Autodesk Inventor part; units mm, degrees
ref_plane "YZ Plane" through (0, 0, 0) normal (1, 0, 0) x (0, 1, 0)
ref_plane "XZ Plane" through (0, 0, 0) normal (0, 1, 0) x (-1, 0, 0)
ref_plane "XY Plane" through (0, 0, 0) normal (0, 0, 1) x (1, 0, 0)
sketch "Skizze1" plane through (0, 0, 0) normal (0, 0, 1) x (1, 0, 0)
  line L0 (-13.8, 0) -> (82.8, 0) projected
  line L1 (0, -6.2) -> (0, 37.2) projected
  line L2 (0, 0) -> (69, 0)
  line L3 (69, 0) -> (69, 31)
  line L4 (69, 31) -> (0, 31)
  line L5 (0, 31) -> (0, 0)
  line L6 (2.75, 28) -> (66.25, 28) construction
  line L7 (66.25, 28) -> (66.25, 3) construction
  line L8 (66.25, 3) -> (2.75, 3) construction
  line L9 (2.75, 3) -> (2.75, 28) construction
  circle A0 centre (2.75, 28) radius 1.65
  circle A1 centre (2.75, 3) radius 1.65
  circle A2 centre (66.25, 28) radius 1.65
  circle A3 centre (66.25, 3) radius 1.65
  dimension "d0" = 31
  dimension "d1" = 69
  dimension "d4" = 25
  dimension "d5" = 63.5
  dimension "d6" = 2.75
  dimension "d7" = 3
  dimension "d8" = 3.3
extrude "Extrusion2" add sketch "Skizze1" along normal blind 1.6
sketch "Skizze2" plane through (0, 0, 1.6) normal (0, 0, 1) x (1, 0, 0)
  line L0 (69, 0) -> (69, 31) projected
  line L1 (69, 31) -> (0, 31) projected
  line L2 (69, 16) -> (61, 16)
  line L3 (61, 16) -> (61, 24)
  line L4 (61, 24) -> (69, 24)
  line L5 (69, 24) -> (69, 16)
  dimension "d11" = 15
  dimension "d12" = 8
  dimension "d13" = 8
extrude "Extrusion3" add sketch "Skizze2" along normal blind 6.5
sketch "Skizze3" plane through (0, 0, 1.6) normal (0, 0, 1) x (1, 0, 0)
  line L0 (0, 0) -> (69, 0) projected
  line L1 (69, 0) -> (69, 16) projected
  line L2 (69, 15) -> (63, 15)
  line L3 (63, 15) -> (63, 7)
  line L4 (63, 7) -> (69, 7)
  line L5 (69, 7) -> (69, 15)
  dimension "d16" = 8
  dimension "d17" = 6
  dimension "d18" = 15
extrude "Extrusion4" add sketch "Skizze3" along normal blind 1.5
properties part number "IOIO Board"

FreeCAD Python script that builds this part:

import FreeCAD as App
import Part
import Sketcher


def add_polygon(sketch, points):
    """Adds a closed chain of lines whose ends are joined by coincident constraints."""
    first, n = sketch.GeometryCount, len(points)
    for a, b in zip(points, points[1:] + points[:1]):
        sketch.addGeometry(Part.LineSegment(App.Vector(*a, 0), App.Vector(*b, 0)), False)
    for i in range(n):
        sketch.addConstraint(Sketcher.Constraint("Coincident", first + i, 2, first + (i + 1) % n, 1))

doc = App.newDocument("Part")
body = doc.addObject("PartDesign::Body", "Body")

sketch1 = body.newObject("Sketcher::SketchObject", "Sketch")
sketch1.AttachmentSupport = (doc.getObject("XY_Plane"), [""])
sketch1.MapMode = "FlatFace"
add_polygon(sketch1, [(0, 31), (0, 0), (69, 0), (69, 31)])
sketch1.addGeometry(Part.Circle(App.Vector(2.8, 3, 0), App.Vector(0, 0, 1), 1.6), False)
sketch1.addGeometry(Part.Circle(App.Vector(66.2, 3, 0), App.Vector(0, 0, 1), 1.6), False)
sketch1.addGeometry(Part.Circle(App.Vector(2.8, 28, 0), App.Vector(0, 0, 1), 1.6), False)
sketch1.addGeometry(Part.Circle(App.Vector(66.2, 28, 0), App.Vector(0, 0, 1), 1.6), False)
sketch1.addConstraint([
    Sketcher.Constraint("Vertical", 0),
    Sketcher.Constraint("Horizontal", 1),
    Sketcher.Constraint("Vertical", 2),
    Sketcher.Constraint("Horizontal", 3),
    Sketcher.Constraint("Coincident", 0, 2, -1, 1),
    Sketcher.Constraint("Equal", 4, 5),
    Sketcher.Constraint("Equal", 5, 6),
    Sketcher.Constraint("Equal", 6, 7),
    Sketcher.Constraint("Horizontal", 4, 3, 5, 3),
    Sketcher.Constraint("Horizontal", 6, 3, 7, 3),
    Sketcher.Constraint("Vertical", 4, 3, 6, 3),
    Sketcher.Constraint("Vertical", 5, 3, 7, 3),
    Sketcher.Constraint("Diameter", 4, 3.3),
    Sketcher.Constraint("DistanceX", 1, 1, 1, 2, 69.0),
    Sketcher.Constraint("DistanceY", 0, 2, 0, 1, 31.0),
    Sketcher.Constraint("DistanceY", -1, 1, 4, 3, 3.0),
    Sketcher.Constraint("DistanceY", 4, 3, 6, 3, 25.0),
    Sketcher.Constraint("DistanceX", 4, 3, 5, 3, 63.5),
    Sketcher.Constraint("DistanceX", -1, 1, 4, 3, 2.75),
])
pad1 = body.newObject("PartDesign::Pad", "Pad")
pad1.Profile = sketch1
pad1.Length = 1.6

sketch2 = body.newObject("Sketcher::SketchObject", "Sketch001")
sketch2.AttachmentSupport = (doc.getObject("XY_Plane"), [""])
sketch2.MapMode = "FlatFace"
sketch2.AttachmentOffset = App.Placement(App.Vector(0, 0, 1.6), App.Rotation())
add_polygon(sketch2, [(61, 16), (69, 16), (69, 24), (61, 24)])
sketch2.addConstraint([
    Sketcher.Constraint("Horizontal", 0),
    Sketcher.Constraint("Vertical", 1),
    Sketcher.Constraint("Horizontal", 2),
    Sketcher.Constraint("Vertical", 3),
    Sketcher.Constraint("Equal", 2, 1),
    Sketcher.Constraint("DistanceX", 0, 1, 0, 2, 8.0),
    Sketcher.Constraint("DistanceX", -1, 1, 0, 2, 69.0),
    Sketcher.Constraint("DistanceY", -1, 1, 0, 2, 16.0),
])
pad2 = body.newObject("PartDesign::Pad", "Pad001")
pad2.Profile = sketch2
pad2.Length = 6.5

sketch3 = body.newObject("Sketcher::SketchObject", "Sketch002")
sketch3.AttachmentSupport = (doc.getObject("XY_Plane"), [""])
sketch3.MapMode = "FlatFace"
sketch3.AttachmentOffset = App.Placement(App.Vector(0, 0, 1.6), App.Rotation())
add_polygon(sketch3, [(63, 7), (69, 7), (69, 15), (63, 15)])
sketch3.addConstraint([
    Sketcher.Constraint("Horizontal", 0),
    Sketcher.Constraint("Vertical", 1),
    Sketcher.Constraint("Horizontal", 2),
    Sketcher.Constraint("Vertical", 3),
    Sketcher.Constraint("DistanceX", 0, 1, 0, 2, 6.0),
    Sketcher.Constraint("DistanceY", 1, 1, 1, 2, 8.0),
    Sketcher.Constraint("DistanceY", -1, 1, 1, 2, 15.0),
    Sketcher.Constraint("DistanceX", -1, 1, 0, 2, 69.0),
])
pad3 = body.newObject("PartDesign::Pad", "Pad002")
pad3.Profile = sketch3
pad3.Length = 1.5

doc.recompute()
